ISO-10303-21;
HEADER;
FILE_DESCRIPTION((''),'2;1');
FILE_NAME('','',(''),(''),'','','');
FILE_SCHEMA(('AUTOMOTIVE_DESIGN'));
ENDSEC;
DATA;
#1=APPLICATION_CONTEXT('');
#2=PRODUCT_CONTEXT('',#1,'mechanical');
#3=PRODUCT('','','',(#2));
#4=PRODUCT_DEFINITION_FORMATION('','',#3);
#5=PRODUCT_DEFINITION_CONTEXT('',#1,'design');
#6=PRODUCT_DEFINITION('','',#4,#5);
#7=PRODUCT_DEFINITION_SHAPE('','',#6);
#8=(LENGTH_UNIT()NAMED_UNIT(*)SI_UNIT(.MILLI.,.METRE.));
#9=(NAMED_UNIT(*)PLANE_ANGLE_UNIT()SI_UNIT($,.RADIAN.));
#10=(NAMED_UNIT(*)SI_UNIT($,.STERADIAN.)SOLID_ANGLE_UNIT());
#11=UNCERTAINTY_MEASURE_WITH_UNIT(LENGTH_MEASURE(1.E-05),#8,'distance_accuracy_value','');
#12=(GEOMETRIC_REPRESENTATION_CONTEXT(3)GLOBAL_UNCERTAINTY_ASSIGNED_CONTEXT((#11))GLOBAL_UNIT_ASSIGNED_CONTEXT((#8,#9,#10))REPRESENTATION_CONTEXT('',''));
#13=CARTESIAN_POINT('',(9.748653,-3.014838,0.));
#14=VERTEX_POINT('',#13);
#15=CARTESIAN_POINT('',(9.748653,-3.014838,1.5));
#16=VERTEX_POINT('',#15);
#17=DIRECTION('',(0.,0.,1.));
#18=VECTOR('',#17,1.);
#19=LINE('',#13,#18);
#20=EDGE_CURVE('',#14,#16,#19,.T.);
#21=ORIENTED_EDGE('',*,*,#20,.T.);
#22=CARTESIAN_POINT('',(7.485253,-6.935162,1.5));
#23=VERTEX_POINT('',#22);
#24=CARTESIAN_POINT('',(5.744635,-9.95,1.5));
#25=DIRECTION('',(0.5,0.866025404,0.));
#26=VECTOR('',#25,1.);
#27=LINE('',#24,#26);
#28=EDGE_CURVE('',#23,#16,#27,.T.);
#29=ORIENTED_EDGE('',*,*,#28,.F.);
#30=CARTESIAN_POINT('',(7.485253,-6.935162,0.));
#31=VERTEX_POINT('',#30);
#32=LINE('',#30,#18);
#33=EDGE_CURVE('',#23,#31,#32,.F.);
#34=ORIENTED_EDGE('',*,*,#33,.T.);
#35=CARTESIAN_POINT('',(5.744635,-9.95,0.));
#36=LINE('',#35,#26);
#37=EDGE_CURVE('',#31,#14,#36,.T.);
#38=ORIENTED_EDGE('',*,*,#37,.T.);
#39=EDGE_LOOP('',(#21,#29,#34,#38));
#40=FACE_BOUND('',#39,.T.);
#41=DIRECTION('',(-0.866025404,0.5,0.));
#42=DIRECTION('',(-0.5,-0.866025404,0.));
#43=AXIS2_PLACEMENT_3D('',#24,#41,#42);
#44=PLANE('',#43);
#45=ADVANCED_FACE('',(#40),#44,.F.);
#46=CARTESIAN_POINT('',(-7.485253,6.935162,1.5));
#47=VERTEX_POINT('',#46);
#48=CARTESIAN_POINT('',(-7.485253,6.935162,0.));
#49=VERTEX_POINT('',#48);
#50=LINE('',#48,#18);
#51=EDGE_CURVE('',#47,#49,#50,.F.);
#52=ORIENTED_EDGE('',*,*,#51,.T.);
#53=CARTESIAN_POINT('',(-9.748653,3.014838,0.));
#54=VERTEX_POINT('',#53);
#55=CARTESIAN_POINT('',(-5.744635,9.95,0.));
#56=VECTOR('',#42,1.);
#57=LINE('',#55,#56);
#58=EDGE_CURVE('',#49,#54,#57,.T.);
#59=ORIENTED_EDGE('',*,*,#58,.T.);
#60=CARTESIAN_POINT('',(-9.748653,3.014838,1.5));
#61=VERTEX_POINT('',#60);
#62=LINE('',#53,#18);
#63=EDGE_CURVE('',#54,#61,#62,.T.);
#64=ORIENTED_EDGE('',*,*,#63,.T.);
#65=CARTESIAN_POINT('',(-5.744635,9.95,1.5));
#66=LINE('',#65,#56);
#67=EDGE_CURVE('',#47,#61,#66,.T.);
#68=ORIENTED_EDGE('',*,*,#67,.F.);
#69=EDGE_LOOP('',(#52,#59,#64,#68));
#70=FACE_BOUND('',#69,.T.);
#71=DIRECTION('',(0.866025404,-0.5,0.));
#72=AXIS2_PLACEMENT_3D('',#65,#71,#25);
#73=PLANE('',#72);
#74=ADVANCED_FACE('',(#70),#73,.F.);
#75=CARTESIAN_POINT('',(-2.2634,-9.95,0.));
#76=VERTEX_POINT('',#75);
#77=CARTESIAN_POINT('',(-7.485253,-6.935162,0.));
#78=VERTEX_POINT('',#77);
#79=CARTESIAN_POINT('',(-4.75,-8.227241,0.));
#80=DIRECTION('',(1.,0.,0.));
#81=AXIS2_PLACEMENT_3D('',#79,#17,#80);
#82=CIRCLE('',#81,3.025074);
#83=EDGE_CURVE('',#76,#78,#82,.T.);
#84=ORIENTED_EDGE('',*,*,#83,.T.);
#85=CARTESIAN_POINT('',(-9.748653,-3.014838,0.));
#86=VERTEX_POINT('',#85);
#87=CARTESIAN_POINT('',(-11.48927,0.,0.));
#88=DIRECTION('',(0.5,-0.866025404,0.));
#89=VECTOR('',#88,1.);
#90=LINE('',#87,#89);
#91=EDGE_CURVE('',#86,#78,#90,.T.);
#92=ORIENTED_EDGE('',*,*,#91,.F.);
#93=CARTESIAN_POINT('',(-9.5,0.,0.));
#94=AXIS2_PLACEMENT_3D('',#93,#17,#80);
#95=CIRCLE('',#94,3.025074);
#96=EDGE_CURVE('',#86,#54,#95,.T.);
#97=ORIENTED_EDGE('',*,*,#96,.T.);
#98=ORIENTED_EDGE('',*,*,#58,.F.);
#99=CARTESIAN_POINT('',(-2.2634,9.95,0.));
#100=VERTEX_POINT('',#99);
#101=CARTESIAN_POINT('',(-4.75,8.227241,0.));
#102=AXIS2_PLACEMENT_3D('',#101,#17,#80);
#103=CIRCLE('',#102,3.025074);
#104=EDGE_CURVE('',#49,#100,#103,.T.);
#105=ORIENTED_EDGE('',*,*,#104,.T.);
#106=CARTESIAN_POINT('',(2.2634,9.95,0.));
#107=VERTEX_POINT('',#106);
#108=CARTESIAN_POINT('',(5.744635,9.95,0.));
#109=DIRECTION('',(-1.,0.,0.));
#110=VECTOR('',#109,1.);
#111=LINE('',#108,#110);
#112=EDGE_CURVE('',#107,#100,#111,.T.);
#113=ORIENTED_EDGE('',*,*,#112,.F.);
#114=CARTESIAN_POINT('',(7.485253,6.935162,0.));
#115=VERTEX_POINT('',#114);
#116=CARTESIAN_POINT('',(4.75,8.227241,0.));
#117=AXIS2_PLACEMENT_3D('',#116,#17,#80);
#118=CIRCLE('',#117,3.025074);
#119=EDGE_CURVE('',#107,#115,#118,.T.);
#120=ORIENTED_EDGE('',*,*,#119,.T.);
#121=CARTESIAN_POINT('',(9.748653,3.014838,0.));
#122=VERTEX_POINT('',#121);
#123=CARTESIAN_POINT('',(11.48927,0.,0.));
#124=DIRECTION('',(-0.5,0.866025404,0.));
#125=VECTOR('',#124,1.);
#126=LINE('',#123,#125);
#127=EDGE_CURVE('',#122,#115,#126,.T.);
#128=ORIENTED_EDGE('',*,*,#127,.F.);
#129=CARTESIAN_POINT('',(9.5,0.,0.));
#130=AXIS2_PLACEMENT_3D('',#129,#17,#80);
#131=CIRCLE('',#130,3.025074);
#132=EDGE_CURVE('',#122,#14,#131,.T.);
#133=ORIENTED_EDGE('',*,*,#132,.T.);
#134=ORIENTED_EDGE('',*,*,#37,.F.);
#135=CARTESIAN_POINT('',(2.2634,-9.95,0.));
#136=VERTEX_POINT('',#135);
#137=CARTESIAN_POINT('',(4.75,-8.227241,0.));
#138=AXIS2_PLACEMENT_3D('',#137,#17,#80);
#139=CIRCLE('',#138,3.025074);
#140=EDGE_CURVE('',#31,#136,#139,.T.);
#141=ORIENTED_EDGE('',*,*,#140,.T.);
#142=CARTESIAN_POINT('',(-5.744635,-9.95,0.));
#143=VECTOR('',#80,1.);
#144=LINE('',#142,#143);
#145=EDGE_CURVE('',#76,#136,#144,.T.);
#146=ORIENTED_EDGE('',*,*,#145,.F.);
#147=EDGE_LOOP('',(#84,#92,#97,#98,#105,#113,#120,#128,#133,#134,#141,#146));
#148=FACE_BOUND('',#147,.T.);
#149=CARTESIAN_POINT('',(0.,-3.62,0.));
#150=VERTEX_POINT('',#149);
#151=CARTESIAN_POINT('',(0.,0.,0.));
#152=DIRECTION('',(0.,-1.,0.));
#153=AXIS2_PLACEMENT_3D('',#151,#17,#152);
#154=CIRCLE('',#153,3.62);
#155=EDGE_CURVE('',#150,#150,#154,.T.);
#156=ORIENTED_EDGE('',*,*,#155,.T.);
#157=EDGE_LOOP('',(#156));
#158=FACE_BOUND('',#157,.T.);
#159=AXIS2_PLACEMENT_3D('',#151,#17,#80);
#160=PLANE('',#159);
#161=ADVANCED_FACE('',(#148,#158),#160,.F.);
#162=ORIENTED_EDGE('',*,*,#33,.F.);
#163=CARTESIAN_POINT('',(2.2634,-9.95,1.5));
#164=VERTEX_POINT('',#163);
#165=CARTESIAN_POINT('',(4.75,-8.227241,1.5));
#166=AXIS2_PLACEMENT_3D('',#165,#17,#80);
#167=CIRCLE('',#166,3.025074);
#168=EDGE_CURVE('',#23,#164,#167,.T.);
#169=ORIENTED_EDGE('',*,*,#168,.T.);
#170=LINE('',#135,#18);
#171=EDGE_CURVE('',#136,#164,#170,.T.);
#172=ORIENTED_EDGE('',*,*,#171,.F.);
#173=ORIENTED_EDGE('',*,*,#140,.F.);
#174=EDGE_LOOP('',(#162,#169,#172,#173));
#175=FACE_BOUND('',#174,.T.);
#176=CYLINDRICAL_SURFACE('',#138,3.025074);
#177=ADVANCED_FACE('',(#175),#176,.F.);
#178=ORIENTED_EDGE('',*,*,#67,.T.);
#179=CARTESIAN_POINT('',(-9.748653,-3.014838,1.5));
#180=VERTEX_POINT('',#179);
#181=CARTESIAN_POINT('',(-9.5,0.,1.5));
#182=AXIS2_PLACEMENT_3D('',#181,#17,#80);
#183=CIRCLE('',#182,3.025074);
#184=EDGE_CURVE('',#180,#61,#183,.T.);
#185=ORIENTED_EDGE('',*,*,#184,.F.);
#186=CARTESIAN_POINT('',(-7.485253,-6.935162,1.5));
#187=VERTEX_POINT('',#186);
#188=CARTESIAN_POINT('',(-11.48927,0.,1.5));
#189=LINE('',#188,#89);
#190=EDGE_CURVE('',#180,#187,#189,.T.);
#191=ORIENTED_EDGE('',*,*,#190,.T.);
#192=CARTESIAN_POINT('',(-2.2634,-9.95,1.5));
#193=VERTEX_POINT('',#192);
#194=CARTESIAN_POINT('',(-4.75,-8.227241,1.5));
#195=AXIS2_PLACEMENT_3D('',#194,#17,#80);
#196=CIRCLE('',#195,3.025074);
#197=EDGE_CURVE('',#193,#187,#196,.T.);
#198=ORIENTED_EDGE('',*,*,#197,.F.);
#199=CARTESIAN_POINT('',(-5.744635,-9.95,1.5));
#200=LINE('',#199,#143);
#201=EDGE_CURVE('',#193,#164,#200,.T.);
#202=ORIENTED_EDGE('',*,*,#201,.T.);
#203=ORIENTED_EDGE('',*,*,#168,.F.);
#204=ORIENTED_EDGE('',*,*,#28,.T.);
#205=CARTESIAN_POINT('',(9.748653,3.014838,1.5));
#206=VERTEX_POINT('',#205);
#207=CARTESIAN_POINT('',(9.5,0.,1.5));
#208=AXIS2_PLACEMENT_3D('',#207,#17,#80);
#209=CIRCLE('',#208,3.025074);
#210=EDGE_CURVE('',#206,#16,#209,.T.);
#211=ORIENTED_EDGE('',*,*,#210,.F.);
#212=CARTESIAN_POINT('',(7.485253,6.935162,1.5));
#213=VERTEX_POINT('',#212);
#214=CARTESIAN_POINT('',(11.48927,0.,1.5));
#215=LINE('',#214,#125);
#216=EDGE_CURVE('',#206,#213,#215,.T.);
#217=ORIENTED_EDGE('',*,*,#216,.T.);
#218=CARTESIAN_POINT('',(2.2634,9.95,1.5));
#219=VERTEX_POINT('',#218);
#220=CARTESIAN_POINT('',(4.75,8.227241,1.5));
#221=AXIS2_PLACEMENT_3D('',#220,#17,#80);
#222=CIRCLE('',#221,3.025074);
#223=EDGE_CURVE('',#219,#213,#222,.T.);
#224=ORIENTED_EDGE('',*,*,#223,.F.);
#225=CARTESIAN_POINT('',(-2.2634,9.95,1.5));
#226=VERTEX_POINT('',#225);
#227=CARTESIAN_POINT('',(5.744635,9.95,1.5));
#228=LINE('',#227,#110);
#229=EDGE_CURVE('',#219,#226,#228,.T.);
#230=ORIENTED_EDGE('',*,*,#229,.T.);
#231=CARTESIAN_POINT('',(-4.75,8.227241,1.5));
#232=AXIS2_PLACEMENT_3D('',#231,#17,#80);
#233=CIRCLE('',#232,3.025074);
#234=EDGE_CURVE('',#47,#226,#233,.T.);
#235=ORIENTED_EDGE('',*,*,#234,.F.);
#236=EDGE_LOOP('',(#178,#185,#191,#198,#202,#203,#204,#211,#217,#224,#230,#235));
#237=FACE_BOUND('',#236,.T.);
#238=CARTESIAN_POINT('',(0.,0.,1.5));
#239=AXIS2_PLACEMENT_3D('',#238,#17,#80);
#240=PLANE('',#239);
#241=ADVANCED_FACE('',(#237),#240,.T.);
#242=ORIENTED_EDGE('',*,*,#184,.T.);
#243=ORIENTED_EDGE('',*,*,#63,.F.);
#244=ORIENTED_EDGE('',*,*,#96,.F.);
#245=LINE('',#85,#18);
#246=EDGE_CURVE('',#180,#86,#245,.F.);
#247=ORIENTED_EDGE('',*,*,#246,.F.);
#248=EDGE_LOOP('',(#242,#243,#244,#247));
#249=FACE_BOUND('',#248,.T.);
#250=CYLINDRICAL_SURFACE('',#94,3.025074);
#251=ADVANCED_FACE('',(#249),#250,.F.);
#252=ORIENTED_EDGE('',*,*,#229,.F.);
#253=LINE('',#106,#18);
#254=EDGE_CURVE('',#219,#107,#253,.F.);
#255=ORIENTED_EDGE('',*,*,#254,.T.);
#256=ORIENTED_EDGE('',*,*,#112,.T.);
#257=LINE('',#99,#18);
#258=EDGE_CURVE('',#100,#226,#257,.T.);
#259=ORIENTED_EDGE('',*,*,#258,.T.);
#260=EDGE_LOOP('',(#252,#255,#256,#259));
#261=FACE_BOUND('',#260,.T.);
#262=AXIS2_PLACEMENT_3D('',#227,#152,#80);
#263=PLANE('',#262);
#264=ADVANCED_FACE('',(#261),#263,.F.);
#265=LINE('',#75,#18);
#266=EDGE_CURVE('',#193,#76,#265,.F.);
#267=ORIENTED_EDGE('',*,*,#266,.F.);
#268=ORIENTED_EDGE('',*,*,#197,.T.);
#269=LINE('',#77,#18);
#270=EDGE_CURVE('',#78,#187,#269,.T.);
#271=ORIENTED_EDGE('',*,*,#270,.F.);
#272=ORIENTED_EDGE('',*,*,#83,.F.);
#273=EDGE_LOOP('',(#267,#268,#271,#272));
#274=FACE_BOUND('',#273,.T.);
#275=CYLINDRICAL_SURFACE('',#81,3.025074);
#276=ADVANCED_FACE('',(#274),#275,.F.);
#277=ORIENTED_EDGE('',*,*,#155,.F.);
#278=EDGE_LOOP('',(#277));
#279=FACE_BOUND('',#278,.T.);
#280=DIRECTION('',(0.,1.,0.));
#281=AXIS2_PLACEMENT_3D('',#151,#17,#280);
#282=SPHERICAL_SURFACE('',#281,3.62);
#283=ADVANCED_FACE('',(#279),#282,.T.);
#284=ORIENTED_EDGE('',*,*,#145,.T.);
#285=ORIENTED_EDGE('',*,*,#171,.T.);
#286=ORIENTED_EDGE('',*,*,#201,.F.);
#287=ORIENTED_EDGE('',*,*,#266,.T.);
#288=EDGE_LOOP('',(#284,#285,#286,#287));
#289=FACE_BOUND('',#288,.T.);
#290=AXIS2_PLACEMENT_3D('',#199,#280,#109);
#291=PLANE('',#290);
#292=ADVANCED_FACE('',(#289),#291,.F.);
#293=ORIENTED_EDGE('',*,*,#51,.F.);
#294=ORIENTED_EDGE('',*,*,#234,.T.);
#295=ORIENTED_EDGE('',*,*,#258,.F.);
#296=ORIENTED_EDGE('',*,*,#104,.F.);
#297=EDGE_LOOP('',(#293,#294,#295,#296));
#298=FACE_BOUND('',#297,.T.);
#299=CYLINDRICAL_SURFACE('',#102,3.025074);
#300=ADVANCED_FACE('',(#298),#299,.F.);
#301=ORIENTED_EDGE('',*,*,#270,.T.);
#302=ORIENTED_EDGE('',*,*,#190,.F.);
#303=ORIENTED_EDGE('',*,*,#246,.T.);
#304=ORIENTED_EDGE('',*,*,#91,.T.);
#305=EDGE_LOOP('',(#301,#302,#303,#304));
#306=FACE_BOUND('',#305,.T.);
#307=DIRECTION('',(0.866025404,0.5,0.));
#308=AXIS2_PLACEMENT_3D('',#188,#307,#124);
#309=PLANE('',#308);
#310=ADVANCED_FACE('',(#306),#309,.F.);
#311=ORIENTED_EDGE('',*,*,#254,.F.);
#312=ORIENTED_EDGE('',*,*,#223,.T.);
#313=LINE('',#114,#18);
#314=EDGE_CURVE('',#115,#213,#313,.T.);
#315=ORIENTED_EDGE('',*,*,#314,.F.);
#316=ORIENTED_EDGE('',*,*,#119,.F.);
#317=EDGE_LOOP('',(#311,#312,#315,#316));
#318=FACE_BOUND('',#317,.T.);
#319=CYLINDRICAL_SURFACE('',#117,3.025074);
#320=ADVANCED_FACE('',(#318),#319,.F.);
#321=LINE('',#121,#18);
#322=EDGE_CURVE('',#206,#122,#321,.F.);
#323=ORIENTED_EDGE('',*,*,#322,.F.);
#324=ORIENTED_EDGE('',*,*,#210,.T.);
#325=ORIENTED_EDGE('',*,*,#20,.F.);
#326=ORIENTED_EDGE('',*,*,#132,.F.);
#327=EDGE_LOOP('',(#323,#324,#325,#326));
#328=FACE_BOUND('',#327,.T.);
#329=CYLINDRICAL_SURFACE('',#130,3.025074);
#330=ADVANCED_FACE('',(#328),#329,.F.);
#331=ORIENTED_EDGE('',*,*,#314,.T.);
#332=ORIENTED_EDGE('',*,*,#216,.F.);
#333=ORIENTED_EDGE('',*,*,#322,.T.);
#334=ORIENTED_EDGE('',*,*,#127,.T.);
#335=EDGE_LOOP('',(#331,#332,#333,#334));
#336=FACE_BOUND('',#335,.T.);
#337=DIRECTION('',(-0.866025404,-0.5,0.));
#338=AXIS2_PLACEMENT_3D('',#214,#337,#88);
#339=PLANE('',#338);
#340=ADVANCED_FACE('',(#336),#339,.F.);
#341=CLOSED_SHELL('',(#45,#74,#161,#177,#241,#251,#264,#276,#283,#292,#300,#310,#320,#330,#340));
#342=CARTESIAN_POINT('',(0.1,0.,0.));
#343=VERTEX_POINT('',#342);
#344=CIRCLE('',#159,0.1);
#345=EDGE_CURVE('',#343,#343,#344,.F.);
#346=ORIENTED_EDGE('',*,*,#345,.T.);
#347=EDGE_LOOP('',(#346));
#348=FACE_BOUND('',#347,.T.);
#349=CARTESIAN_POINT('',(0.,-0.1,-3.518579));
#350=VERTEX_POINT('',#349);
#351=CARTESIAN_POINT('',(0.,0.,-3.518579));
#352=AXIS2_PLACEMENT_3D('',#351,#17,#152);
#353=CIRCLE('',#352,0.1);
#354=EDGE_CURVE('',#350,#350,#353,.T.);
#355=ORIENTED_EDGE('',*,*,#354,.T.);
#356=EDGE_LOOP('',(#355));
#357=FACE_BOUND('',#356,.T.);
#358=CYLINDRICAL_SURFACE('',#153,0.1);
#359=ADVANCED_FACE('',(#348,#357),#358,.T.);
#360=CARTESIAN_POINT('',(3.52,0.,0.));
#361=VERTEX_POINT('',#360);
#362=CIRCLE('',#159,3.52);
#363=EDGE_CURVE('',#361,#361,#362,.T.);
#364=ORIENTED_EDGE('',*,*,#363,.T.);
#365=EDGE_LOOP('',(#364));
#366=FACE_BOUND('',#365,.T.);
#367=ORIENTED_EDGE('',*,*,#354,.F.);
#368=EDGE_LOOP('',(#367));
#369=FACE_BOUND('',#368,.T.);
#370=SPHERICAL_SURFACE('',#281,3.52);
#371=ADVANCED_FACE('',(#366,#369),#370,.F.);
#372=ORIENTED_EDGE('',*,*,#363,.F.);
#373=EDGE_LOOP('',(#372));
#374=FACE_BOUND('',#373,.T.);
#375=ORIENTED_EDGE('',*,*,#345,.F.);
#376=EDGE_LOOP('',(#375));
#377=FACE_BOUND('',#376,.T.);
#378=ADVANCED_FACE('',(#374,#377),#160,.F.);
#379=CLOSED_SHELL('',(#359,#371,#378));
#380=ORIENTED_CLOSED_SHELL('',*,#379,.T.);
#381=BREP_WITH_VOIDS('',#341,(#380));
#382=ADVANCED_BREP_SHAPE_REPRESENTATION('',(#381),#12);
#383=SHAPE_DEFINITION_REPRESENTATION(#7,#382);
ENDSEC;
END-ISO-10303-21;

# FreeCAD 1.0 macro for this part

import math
import FreeCAD as App
import Part
import Sketcher
Q = App.Units.Quantity

doc = App.newDocument("Part")
params = doc.addObject("Spreadsheet::Sheet", "Params")
for row, (alias, value) in enumerate([
    ("pad1_length", "1.5 mm"),
    ("sketch3_radius", "3.62 mm"),
    ("sketch3_radius2", "3.52 mm"),
    ("revolution_angle", "360 deg"),
], start=1):
    params.set(f"A{row}", alias)
    params.set(f"B{row}", "=" + value)
    params.setAlias(f"B{row}", alias)

body = doc.addObject("PartDesign::Body", "Body")

# Sketch on XY plane
sketch1 = doc.addObject("Sketcher::SketchObject", "Sketch")
body.addObject(sketch1)
sketch1.AttachmentSupport = (doc.XY_Plane, [""])
sketch1.MapMode = "FlatFace"
sketch1.addGeometry([
    Part.LineSegment(App.Vector(11, 0, 0), App.Vector(6, 10, 0)),  # 0
    Part.LineSegment(App.Vector(6, 10, 0), App.Vector(-6, 10, 0)),  # 1
    Part.LineSegment(App.Vector(-6, 10, 0), App.Vector(-11, 0, 0)),  # 2
    Part.LineSegment(App.Vector(-11, 0, 0), App.Vector(-6, -10, 0)),  # 3
    Part.LineSegment(App.Vector(-6, -10, 0), App.Vector(6, -10, 0)),  # 4
    Part.LineSegment(App.Vector(6, -10, 0), App.Vector(11, 0, 0)),  # 5
], False)
sketch1.addConstraint([
    Sketcher.Constraint("Coincident", 0, 2, 1, 1),
    Sketcher.Constraint("Coincident", 1, 2, 2, 1),
    Sketcher.Constraint("Coincident", 2, 2, 3, 1),
    Sketcher.Constraint("Coincident", 3, 2, 4, 1),
    Sketcher.Constraint("Coincident", 4, 2, 5, 1),
    Sketcher.Constraint("Coincident", 5, 2, 0, 1),
    Sketcher.Constraint("Horizontal", 1),
    Sketcher.Constraint("Horizontal", 4),
    Sketcher.Constraint("Symmetric", 0, 2, 3, 2, -1, 1),
    Sketcher.Constraint("Symmetric", 2, 2, 5, 2, -1, 1),
    Sketcher.Constraint("PointOnObject", 2, 2, -1),
    Sketcher.Constraint("Parallel", 2, 5),
    Sketcher.Constraint("Vertical", 1, 2, 3, 2),
    Sketcher.Constraint("Angle", 0, Q("120 deg")),
    Sketcher.Constraint("DistanceY", 3, 2, 1, 2, 19.9),
    Sketcher.Constraint("DistanceX", 1, 2, 1, 1, 11.48927),
])
pad1 = doc.addObject("PartDesign::Pad", "Pad")
body.addObject(pad1)
pad1.Profile = sketch1
pad1.setExpression("Length", "Params.pad1_length")

# Sketch on XY plane
sketch2 = doc.addObject("Sketcher::SketchObject", "Sketch001")
body.addObject(sketch2)
sketch2.AttachmentSupport = (doc.XY_Plane, [""])
sketch2.MapMode = "FlatFace"
sketch2.AttachmentOffset = App.Placement(App.Vector(0, 0, 1.5), App.Rotation())
sketch2.addGeometry([
    Part.Circle(App.Vector(-9.5, 0, 0), App.Vector(0, 0, 1), 3),  # 0
    Part.Circle(App.Vector(-4.8, 8.2, 0), App.Vector(0, 0, 1), 3),  # 1
    Part.Circle(App.Vector(4.8, 8.2, 0), App.Vector(0, 0, 1), 3),  # 2
    Part.Circle(App.Vector(9.5, 0, 0), App.Vector(0, 0, 1), 3),  # 3
    Part.Circle(App.Vector(4.8, -8.2, 0), App.Vector(0, 0, 1), 3),  # 4
    Part.Circle(App.Vector(-4.8, -8.2, 0), App.Vector(0, 0, 1), 3),  # 5
], False)
sketch2.addConstraint([
    Sketcher.Constraint("Equal", 0, 1),
    Sketcher.Constraint("Equal", 1, 2),
    Sketcher.Constraint("Equal", 2, 3),
    Sketcher.Constraint("Equal", 3, 4),
    Sketcher.Constraint("Equal", 4, 5),
    Sketcher.Constraint("Symmetric", 0, 3, 3, 3, -1, 1),
    Sketcher.Constraint("Symmetric", 1, 3, 4, 3, -1, 1),
    Sketcher.Constraint("Symmetric", 2, 3, 5, 3, -1, 1),
    Sketcher.Constraint("Symmetric", 1, 3, 2, 3, -2),
    Sketcher.Constraint("PointOnObject", 0, 3, -1),
    Sketcher.Constraint("DistanceX", 0, 3, 3, 3, 19.0),
    Sketcher.Constraint("DistanceX", 1, 3, 2, 3, 9.5),
    Sketcher.Constraint("Diameter", 0, 6.050149),
    Sketcher.Constraint("DistanceY", -1, 1, 1, 3, 8.227241),
])
pocket1 = doc.addObject("PartDesign::Pocket", "Pocket")
body.addObject(pocket1)
pocket1.Profile = sketch2
pocket1.Type = "ThroughAll"

# Sketch on YZ plane
sketch3 = doc.addObject("Sketcher::SketchObject", "Sketch002")
body.addObject(sketch3)
sketch3.AttachmentSupport = (doc.YZ_Plane, [""])
sketch3.MapMode = "FlatFace"
sketch3.addGeometry([
    Part.LineSegment(App.Vector(0, 0, 0), App.Vector(0, -3.62, 0)),  # 0
    Part.ArcOfCircle(Part.Circle(App.Vector(0, 0, 0), App.Vector(0, 0, 1), 3.62), math.radians(-90), math.radians(0)),  # 1
    Part.LineSegment(App.Vector(3.62, 0, 0), App.Vector(3.52, 0, 0)),  # 2
    Part.ArcOfCircle(Part.Circle(App.Vector(0, 0, 0), App.Vector(0, 0, 1), 3.52), math.radians(-88), math.radians(0)),  # 3
    Part.LineSegment(App.Vector(0.1, -3.52, 0), App.Vector(0.1, 0, 0)),  # 4
    Part.LineSegment(App.Vector(0.1, 0, 0), App.Vector(0, 0, 0)),  # 5
], False)
sketch3.addConstraint([
    Sketcher.Constraint("Coincident", 0, 2, 1, 1),
    Sketcher.Constraint("Coincident", 1, 2, 2, 1),
    Sketcher.Constraint("Coincident", 2, 2, 3, 2),
    Sketcher.Constraint("Coincident", 3, 1, 4, 1),
    Sketcher.Constraint("Coincident", 4, 2, 5, 1),
    Sketcher.Constraint("Coincident", 5, 2, 0, 1),
    Sketcher.Constraint("Vertical", 0),
    Sketcher.Constraint("Horizontal", 2),
    Sketcher.Constraint("Vertical", 4),
    Sketcher.Constraint("Horizontal", 5),
    Sketcher.Constraint("Coincident", 1, 3, -1, 1),
    Sketcher.Constraint("Coincident", 3, 3, -1, 1),
    Sketcher.Constraint("Coincident", 5, 2, -1, 1),
    Sketcher.Constraint("PointOnObject", 1, 2, -1),
    Sketcher.Constraint("Equal", 2, 5),
    Sketcher.Constraint("Radius", 1, 3.62),
    Sketcher.Constraint("Radius", 3, 3.52),
])
sketch3.setExpression("Constraints[15]", "Params.sketch3_radius")
sketch3.setExpression("Constraints[16]", "Params.sketch3_radius2")
revolution = doc.addObject("PartDesign::Revolution", "Revolution")
body.addObject(revolution)
revolution.Profile = sketch3
revolution.ReferenceAxis = (sketch3, ["V_Axis"])
revolution.setExpression("Angle", "Params.revolution_angle")

doc.recompute()
